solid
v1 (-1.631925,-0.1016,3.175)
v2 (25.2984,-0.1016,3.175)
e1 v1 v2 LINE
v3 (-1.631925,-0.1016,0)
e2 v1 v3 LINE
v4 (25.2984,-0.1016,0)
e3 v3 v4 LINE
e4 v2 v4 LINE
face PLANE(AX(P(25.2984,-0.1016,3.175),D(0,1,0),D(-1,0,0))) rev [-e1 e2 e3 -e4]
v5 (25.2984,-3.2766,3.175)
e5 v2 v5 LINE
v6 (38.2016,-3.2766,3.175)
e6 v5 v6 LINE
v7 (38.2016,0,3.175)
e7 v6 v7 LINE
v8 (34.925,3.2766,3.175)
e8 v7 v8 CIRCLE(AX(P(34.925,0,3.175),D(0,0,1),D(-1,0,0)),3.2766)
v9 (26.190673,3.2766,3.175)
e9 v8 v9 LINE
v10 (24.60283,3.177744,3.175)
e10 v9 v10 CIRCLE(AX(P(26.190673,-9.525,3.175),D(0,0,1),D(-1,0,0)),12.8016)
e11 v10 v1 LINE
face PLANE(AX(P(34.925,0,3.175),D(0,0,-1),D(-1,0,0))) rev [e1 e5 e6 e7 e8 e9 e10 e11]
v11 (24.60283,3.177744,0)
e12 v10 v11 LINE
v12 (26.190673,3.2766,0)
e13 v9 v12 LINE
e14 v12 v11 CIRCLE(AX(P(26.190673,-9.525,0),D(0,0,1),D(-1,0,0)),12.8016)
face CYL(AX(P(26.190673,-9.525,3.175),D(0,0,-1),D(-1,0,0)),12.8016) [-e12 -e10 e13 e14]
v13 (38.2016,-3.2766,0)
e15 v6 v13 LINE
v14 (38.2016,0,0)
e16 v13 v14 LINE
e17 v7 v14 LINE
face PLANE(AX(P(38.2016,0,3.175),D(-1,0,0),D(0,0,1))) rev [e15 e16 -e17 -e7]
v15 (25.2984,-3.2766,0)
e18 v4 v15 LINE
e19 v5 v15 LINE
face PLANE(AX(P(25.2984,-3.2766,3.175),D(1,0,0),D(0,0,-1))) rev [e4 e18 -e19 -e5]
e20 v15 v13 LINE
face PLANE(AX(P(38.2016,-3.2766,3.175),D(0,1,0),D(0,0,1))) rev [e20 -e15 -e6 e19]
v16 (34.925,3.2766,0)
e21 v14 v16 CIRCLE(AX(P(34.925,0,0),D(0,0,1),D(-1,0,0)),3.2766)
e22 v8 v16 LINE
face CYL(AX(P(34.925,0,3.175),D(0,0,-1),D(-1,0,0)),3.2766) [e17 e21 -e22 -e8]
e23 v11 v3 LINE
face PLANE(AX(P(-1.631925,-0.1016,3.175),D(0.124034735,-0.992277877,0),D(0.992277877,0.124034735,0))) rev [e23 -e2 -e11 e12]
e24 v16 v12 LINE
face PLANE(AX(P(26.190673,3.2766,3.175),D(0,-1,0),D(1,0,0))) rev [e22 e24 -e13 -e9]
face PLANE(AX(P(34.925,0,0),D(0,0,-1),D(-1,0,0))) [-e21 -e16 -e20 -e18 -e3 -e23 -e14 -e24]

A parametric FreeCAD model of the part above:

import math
import FreeCAD as App
import Part
import Sketcher
from FreeCAD import Vector
Q = App.Units.Quantity

doc = App.newDocument("Part")
body = doc.addObject("PartDesign::Body", "Body")

# Sketch on XY plane
sketch1 = body.newObject("Sketcher::SketchObject", "Sketch")
sketch1.AttachmentSupport = (doc.getObject("XY_Plane"), [""])
sketch1.MapMode = "FlatFace"
sketch1.addGeometry([
    Part.LineSegment(Vector(38.2, -3.3, 0), Vector(38.2, 0, 0)),  # 0
    Part.ArcOfCircle(Part.Circle(Vector(34.9, 0, 0), Vector(0, 0, 1), 3.3), math.radians(0), math.radians(90)),  # 1
    Part.LineSegment(Vector(34.9, 3.3, 0), Vector(26.2, 3.3, 0)),  # 2
    Part.ArcOfCircle(Part.Circle(Vector(26.2, -9.5, 0), Vector(0, 0, 1), 12.8), math.radians(90), math.radians(97.13)),  # 3
    Part.LineSegment(Vector(24.6, 3.2, 0), Vector(-1.6, -0.1, 0)),  # 4
    Part.LineSegment(Vector(-1.6, -0.1, 0), Vector(25.3, -0.1, 0)),  # 5
    Part.LineSegment(Vector(25.3, -0.1, 0), Vector(25.3, -3.3, 0)),  # 6
    Part.LineSegment(Vector(25.3, -3.3, 0), Vector(38.2, -3.3, 0)),  # 7
], False)
sketch1.addConstraint([
    Sketcher.Constraint("Tangent", 0, 2, 1, 1),
    Sketcher.Constraint("Tangent", 1, 2, 2, 1),
    Sketcher.Constraint("Tangent", 2, 2, 3, 1),
    Sketcher.Constraint("Tangent", 3, 2, 4, 1),
    Sketcher.Constraint("Coincident", 4, 2, 5, 1),
    Sketcher.Constraint("Coincident", 5, 2, 6, 1),
    Sketcher.Constraint("Coincident", 6, 2, 7, 1),
    Sketcher.Constraint("Coincident", 7, 2, 0, 1),
    Sketcher.Constraint("Vertical", 0),
    Sketcher.Constraint("Horizontal", 2),
    Sketcher.Constraint("Horizontal", 5),
    Sketcher.Constraint("Vertical", 6),
    Sketcher.Constraint("Horizontal", 7),
    Sketcher.Constraint("PointOnObject", 1, 3, -1),
    Sketcher.Constraint("Radius", 1, Q("0.129 in")),
    Sketcher.Constraint("Radius", 3, Q("0.504 in")),
    Sketcher.Constraint("DistanceX", 7, 1, 7, 2, Q("0.508 in")),
    Sketcher.Constraint("DistanceY", 0, 1, 0, 2, Q("0.129 in")),
    Sketcher.Constraint("DistanceY", 6, 2, 6, 1, Q("0.125 in")),
    Sketcher.Constraint("DistanceX", -1, 1, 1, 3, Q("1.375 in")),
    Sketcher.Constraint("DistanceX", 4, 2, 2, 2, 27.822599),
    Sketcher.Constraint("DistanceX", 2, 2, 2, 1, 8.734327),
])
pad1 = body.newObject("PartDesign::Pad", "Pad")
pad1.Profile = sketch1
pad1.Length = Q("0.125 in")

doc.recompute()
